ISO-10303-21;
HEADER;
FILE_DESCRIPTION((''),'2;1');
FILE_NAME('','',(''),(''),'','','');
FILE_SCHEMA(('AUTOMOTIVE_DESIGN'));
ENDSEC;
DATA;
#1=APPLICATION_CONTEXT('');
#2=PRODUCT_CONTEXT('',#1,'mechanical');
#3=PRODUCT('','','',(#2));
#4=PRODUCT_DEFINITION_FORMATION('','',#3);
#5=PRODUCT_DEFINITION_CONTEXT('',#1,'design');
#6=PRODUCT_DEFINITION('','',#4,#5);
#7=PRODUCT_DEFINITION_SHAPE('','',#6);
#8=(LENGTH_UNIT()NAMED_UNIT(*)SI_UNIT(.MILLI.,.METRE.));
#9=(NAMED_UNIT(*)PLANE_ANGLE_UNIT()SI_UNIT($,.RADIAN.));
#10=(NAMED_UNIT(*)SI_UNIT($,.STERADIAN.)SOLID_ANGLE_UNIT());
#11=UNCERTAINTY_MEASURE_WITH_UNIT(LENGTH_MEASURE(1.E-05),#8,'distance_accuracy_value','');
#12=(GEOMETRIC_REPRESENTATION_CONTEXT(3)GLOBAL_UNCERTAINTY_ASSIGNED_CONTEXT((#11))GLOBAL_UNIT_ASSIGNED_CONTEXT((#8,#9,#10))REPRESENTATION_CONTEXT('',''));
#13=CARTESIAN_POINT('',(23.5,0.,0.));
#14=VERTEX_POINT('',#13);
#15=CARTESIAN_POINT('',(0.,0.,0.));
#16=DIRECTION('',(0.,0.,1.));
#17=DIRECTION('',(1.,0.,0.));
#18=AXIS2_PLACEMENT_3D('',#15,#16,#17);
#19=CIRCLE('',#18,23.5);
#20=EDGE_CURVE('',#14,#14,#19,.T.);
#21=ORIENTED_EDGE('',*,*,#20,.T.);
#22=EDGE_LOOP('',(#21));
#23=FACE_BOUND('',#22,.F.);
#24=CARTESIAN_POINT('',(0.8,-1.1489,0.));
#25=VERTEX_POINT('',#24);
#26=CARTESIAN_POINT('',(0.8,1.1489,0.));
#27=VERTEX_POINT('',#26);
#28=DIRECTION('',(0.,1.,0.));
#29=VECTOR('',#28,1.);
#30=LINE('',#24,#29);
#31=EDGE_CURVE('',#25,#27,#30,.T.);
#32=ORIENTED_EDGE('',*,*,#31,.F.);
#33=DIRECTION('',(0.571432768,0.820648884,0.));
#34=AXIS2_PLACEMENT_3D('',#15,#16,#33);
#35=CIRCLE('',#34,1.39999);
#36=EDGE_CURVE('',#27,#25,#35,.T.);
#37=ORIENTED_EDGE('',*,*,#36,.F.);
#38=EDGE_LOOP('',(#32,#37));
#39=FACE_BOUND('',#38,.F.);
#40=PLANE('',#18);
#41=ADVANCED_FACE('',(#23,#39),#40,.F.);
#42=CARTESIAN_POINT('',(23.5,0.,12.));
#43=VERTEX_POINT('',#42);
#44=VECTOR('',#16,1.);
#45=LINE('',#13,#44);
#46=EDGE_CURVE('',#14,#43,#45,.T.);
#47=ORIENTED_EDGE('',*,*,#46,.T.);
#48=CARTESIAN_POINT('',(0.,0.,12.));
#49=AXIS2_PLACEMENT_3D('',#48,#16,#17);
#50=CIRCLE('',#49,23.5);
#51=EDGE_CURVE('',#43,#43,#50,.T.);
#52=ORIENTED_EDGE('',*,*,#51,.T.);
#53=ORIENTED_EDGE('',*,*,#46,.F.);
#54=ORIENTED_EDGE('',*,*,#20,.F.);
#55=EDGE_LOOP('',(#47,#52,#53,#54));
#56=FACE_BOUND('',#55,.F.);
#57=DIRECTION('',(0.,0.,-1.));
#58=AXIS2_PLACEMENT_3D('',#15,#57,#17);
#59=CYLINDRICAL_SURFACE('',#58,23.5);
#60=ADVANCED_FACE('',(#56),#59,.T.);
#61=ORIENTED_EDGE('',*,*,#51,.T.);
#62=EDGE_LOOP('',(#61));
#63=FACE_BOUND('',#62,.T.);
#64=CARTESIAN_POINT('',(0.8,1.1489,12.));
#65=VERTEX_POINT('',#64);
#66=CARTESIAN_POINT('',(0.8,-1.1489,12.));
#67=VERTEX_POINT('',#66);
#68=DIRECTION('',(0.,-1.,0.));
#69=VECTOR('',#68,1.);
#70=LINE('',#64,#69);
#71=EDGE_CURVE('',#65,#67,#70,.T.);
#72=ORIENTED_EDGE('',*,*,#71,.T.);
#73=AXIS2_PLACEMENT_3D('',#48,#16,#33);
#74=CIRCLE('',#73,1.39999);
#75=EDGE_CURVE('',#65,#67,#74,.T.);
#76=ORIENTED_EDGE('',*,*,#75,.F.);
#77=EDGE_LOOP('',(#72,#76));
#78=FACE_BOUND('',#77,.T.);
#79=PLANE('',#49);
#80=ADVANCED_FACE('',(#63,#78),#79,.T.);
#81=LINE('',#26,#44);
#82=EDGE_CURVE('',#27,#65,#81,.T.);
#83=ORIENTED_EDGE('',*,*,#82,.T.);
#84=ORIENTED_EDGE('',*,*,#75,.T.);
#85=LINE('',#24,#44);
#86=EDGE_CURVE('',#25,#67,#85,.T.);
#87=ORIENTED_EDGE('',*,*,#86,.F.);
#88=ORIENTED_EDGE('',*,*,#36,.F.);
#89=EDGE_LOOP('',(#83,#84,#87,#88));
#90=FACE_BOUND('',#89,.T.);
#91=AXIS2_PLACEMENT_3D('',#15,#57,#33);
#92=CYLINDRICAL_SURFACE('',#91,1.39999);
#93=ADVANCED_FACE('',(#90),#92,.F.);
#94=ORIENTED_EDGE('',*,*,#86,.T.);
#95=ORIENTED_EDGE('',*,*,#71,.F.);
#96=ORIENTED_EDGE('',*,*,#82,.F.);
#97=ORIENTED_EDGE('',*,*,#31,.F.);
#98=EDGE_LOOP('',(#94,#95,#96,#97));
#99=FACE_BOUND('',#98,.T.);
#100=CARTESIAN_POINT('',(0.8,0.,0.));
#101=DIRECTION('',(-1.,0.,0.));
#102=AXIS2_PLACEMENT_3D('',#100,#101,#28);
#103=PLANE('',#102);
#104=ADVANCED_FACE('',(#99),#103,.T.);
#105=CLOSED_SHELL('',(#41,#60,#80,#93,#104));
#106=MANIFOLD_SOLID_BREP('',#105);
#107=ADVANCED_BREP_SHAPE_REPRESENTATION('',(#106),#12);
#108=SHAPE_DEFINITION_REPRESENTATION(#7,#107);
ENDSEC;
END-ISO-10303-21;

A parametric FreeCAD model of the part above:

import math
import FreeCAD as App
import Part
import Sketcher

V = App.Vector
Q = App.Units.Quantity

doc = App.newDocument("Part")
params = doc.addObject("Spreadsheet::Sheet", "Params")
for row, (alias, value) in enumerate([
    ("sketch1_diameter", "47 mm"),
    ("pad1_length", "12 mm"),
    ("sketch2_radius", "1.4 mm"),
    ("pocket1_length", "12 mm"),
], start=1):
    params.set(f"A{row}", alias)
    params.set(f"B{row}", "=" + value)
    params.setAlias(f"B{row}", alias)

body = doc.addObject("PartDesign::Body", "Body")

# Sketch on XY plane
sketch1 = doc.addObject("Sketcher::SketchObject", "Sketch")
body.addObject(sketch1)
sketch1.AttachmentSupport = (doc.XY_Plane, [""])
sketch1.MapMode = "FlatFace"
sketch1.addGeometry(Part.Circle(V(0, 0, 0), V(0, 0, 1), 24), False)
sketch1.addConstraint([
    Sketcher.Constraint("Coincident", 0, 3, -1, 1),
    Sketcher.Constraint("Diameter", 0, Q("47 mm")),
])
sketch1.setExpression("Constraints[1]", "Params.sketch1_diameter")
pad1 = doc.addObject("PartDesign::Pad", "Pad")
body.addObject(pad1)
pad1.Profile = sketch1
pad1.setExpression("Length", "Params.pad1_length")

# Sketch on XY plane
sketch2 = doc.addObject("Sketcher::SketchObject", "Sketch001")
body.addObject(sketch2)
sketch2.AttachmentSupport = (doc.XY_Plane, [""])
sketch2.MapMode = "FlatFace"
sketch2.addGeometry([
    Part.LineSegment(V(0.8, -1.1, 0), V(0.8, 1.1, 0)),
    Part.ArcOfCircle(Part.Circle(V(0, 0, 0), V(0, 0, 1), 1.4), math.radians(55), math.radians(305)),
], False)
sketch2.addConstraint([
    Sketcher.Constraint("Coincident", 0, 1, 1, 2),
    Sketcher.Constraint("Coincident", 1, 1, 0, 2),
    Sketcher.Constraint("Vertical", 0),
    Sketcher.Constraint("Coincident", 1, 3, -1, 1),
    Sketcher.Constraint("Radius", 1, Q("1.4 mm")),
    Sketcher.Constraint("DistanceX", -1, 1, 0, 1, Q("0.8 mm")),
])
sketch2.setExpression("Constraints[4]", "Params.sketch2_radius")
pocket1 = doc.addObject("PartDesign::Pocket", "Pocket")
body.addObject(pocket1)
pocket1.Profile = sketch2
pocket1.setExpression("Length", "Params.pocket1_length")
pocket1.Reversed = True

doc.recompute()
